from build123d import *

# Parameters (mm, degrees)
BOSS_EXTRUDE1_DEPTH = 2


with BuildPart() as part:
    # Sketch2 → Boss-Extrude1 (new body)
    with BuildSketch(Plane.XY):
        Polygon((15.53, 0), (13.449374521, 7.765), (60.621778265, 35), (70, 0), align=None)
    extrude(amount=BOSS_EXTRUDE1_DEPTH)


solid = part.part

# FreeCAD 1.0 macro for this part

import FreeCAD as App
import Part
import Sketcher
Q = App.Units.Quantity


def add_polygon(sketch, points):
    """Adds a closed chain of lines whose ends are joined by coincident constraints."""
    first, n = sketch.GeometryCount, len(points)
    for a, b in zip(points, points[1:] + points[:1]):
        sketch.addGeometry(Part.LineSegment(App.Vector(*a, 0), App.Vector(*b, 0)), False)
    for i in range(n):
        sketch.addConstraint(Sketcher.Constraint("Coincident", first + i, 2, first + (i + 1) % n, 1))

doc = App.newDocument("Part")
body = doc.addObject("PartDesign::Body", "Body")

# Sketch on XY plane
sketch1 = body.newObject("Sketcher::SketchObject", "Sketch")
sketch1.AttachmentSupport = (doc.getObject("XY_Plane"), [""])
sketch1.MapMode = "FlatFace"
add_polygon(sketch1, [(13.449375, 7.765), (15.53, 0), (70, 0), (60.621778, 35)])  # lines 0-3
sketch1.addConstraint([
    Sketcher.Constraint("Horizontal", 1),
    Sketcher.Constraint("PointOnObject", 0, 2, -1),
    Sketcher.Constraint("Parallel", 0, 2),
    Sketcher.Constraint("Angle", 0, Q("-75 deg")),
    Sketcher.Constraint("Angle", 3, Q("-150 deg")),
    Sketcher.Constraint("DistanceX", -1, 1, 1, 2, Q("70 mm")),
    Sketcher.Constraint("DistanceY", -1, 1, 2, 2, Q("35 mm")),
    Sketcher.Constraint("DistanceX", 1, 1, 1, 2, Q("54.47 mm")),
])
pad1 = body.newObject("PartDesign::Pad", "Pad")
pad1.Profile = sketch1
pad1.Length = 2

doc.recompute()
